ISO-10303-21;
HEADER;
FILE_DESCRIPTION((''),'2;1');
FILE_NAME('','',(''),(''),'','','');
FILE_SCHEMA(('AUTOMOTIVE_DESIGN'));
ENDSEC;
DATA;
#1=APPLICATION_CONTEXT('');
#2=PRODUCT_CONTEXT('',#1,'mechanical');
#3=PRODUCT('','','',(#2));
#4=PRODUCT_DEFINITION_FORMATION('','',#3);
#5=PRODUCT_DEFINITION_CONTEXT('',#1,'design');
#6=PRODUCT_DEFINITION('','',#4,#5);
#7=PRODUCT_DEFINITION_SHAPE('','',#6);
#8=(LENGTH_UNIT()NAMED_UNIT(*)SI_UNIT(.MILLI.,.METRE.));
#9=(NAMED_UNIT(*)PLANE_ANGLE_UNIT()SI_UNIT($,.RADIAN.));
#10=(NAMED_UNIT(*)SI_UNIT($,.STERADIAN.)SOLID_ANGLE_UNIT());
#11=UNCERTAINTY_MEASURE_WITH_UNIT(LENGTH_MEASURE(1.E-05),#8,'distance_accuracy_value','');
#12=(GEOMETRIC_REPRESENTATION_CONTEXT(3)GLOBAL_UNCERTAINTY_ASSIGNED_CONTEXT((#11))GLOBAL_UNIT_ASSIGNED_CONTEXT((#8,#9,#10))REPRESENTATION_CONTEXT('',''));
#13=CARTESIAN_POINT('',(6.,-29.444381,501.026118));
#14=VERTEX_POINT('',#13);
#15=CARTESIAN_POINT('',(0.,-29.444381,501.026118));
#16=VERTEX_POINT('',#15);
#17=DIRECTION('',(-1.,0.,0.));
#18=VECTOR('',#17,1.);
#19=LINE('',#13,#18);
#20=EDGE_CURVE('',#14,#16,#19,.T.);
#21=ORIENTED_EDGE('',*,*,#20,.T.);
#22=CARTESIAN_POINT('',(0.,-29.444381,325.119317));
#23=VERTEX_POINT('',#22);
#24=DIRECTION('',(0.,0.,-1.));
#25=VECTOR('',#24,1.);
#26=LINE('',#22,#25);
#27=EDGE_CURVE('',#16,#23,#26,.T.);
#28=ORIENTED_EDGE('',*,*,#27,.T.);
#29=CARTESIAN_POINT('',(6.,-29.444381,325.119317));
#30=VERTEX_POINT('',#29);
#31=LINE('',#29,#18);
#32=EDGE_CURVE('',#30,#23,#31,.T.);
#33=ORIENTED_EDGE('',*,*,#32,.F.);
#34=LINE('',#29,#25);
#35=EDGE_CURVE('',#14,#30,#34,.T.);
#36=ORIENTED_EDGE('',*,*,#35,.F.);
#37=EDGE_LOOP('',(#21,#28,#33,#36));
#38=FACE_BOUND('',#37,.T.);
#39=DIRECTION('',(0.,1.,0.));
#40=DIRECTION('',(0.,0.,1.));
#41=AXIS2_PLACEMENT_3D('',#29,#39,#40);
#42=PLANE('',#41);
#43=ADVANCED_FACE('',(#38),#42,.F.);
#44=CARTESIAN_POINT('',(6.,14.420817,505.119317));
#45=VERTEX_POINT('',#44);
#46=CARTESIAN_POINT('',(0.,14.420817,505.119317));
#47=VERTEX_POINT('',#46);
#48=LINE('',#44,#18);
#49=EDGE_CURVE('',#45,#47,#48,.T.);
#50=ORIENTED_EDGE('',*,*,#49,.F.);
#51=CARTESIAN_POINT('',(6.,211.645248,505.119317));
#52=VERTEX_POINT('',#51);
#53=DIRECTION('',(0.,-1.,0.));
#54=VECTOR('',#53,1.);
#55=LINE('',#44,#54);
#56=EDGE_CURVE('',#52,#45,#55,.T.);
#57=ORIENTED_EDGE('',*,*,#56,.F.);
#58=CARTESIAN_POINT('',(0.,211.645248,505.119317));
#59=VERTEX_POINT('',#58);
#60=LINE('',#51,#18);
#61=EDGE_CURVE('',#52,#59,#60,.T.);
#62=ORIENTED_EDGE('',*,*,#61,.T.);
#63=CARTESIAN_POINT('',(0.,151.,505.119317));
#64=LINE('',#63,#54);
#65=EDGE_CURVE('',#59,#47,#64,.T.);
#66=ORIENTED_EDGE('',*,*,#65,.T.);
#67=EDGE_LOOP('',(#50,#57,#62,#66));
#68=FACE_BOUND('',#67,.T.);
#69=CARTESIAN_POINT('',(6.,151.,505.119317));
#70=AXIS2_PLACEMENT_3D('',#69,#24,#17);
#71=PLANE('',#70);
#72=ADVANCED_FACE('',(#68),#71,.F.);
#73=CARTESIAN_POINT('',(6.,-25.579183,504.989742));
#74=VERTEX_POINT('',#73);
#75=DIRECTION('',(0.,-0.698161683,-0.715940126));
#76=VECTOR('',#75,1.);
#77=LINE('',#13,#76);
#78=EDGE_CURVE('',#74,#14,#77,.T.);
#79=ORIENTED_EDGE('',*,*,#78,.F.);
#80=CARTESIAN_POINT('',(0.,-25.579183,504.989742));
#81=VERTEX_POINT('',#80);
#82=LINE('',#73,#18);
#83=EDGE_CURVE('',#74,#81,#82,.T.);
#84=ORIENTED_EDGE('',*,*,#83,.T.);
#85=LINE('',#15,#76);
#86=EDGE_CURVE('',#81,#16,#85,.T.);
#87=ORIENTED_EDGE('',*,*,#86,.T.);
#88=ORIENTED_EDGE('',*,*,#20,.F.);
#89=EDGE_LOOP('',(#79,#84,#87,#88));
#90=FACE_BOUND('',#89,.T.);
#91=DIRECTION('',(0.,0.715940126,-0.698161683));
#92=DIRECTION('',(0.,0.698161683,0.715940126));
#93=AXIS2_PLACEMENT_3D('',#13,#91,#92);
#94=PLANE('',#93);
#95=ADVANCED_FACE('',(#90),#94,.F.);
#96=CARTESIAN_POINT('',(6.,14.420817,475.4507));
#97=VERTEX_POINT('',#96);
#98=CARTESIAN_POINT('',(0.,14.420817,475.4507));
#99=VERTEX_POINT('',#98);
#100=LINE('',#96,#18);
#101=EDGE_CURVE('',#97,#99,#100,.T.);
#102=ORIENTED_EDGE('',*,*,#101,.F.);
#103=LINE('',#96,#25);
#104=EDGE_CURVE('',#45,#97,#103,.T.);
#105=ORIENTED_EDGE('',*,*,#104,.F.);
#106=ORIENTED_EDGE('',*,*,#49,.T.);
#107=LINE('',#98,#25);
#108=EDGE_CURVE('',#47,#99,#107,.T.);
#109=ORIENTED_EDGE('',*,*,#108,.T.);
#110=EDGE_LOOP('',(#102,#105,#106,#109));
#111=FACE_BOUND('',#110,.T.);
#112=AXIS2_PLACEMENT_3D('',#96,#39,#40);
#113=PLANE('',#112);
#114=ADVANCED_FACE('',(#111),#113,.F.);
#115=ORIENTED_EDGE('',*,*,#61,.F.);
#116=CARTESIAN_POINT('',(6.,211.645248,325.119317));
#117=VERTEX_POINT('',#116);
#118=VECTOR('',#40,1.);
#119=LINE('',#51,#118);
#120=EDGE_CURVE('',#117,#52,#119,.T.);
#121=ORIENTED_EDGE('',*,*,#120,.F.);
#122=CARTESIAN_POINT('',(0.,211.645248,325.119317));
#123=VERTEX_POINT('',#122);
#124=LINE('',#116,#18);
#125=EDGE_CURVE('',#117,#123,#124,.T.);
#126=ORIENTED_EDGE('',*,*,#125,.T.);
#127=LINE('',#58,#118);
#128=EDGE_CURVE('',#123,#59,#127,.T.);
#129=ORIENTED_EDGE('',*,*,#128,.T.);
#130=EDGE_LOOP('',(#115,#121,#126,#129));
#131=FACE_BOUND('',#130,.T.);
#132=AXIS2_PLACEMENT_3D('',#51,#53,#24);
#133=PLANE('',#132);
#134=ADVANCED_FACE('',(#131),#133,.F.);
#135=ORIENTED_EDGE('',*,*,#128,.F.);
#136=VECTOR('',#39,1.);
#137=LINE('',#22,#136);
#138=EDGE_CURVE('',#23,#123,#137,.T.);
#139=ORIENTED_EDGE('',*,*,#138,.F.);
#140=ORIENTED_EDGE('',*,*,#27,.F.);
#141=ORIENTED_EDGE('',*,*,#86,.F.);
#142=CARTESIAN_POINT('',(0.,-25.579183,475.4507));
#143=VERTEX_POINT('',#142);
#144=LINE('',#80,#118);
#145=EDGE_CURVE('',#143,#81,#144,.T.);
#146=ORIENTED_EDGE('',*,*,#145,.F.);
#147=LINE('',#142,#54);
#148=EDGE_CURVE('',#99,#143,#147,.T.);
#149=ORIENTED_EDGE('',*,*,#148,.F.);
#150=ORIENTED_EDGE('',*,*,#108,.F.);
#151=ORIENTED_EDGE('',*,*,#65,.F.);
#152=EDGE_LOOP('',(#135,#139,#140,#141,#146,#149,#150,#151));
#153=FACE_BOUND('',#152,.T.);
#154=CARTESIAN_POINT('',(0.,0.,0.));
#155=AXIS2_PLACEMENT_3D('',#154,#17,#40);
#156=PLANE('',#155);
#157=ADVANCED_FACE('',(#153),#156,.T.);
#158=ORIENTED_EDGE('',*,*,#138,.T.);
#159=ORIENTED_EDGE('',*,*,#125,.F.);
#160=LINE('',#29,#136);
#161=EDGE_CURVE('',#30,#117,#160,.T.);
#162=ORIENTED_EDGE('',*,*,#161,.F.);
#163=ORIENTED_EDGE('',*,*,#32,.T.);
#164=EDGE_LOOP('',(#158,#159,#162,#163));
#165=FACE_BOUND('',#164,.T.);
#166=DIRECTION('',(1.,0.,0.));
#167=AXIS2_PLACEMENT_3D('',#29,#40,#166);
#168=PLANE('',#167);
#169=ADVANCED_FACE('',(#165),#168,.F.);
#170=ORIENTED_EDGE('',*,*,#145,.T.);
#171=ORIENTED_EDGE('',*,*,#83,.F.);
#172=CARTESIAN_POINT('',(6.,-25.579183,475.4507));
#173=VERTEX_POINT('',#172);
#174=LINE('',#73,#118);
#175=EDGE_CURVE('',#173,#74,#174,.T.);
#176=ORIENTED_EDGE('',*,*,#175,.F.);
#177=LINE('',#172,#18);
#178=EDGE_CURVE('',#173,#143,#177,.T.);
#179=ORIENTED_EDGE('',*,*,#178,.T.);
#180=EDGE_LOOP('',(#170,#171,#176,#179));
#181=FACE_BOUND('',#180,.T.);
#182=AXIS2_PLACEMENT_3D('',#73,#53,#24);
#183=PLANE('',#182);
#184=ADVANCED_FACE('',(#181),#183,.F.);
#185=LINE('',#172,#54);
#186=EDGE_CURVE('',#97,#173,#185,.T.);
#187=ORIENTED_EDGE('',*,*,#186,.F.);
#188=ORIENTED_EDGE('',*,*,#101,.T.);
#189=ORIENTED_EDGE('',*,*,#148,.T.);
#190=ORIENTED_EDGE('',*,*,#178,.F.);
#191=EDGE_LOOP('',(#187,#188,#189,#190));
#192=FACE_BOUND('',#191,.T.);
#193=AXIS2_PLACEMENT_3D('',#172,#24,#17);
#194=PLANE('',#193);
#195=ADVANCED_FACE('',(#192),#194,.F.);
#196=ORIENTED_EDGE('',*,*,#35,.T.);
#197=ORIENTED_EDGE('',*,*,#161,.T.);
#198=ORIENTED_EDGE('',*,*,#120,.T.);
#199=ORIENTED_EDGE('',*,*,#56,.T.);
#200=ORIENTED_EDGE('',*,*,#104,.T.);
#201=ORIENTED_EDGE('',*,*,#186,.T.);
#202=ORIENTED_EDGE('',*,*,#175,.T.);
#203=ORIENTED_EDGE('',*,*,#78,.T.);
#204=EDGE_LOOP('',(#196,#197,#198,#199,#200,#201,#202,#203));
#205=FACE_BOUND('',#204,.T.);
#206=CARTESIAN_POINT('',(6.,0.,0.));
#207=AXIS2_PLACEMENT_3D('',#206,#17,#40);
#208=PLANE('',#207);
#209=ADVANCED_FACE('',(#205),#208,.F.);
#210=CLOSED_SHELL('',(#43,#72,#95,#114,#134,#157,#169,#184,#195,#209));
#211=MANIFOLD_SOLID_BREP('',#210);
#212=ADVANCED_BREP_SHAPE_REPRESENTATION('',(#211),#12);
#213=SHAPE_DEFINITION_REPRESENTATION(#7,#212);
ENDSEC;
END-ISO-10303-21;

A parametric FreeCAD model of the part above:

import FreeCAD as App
import Part
import Sketcher
Q = App.Units.Quantity


def add_polygon(sketch, points):
    """Adds a closed chain of lines whose ends are joined by coincident constraints."""
    first, n = sketch.GeometryCount, len(points)
    for a, b in zip(points, points[1:] + points[:1]):
        sketch.addGeometry(Part.LineSegment(App.Vector(*a, 0), App.Vector(*b, 0)), False)
    for i in range(n):
        sketch.addConstraint(Sketcher.Constraint("Coincident", first + i, 2, first + (i + 1) % n, 1))

doc = App.newDocument("Part")
body = doc.addObject("PartDesign::Body", "Body")

sketch1 = body.newObject("Sketcher::SketchObject", "Sketch")
sketch1.AttachmentSupport = (doc.getObject("YZ_Plane"), [""])
sketch1.MapMode = "FlatFace"
add_polygon(sketch1, [(212, 325), (212, 505), (14, 505), (14, 475), (-26, 475), (-26, 505), (-29, 501), (-29, 325)])
sketch1.addConstraint(Sketcher.Constraint("Vertical", 0))
sketch1.addConstraint(Sketcher.Constraint("Horizontal", 1))
sketch1.addConstraint(Sketcher.Constraint("Vertical", 2))
sketch1.addConstraint(Sketcher.Constraint("Horizontal", 3))
sketch1.addConstraint(Sketcher.Constraint("Vertical", 4))
sketch1.addConstraint(Sketcher.Constraint("Vertical", 6))
sketch1.addConstraint(Sketcher.Constraint("Horizontal", 7))
sketch1.addConstraint(Sketcher.Constraint("DistanceX", 3, 2, 3, 1, Q("40 mm")))
sketch1.addConstraint(Sketcher.Constraint("DistanceY", 0, 1, 0, 2, Q("180 mm")))
sketch1.addConstraint(Sketcher.Constraint("DistanceY", 6, 2, 6, 1, Q("175.906801 mm")))
sketch1.addConstraint(Sketcher.Constraint("DistanceX", 1, 2, 1, 1, Q("197.224431 mm")))
sketch1.addConstraint(Sketcher.Constraint("DistanceX", 7, 1, 7, 2, Q("241.089629 mm")))
sketch1.addConstraint(Sketcher.Constraint("DistanceY", 4, 1, 4, 2, Q("29.539041 mm")))
sketch1.addConstraint(Sketcher.Constraint("DistanceY", -1, 1, 2, 2, Q("475.4507 mm")))
sketch1.addConstraint(Sketcher.Constraint("Distance", 5, Q("5.536251 mm")))
sketch1.addConstraint(Sketcher.Constraint("DistanceX", 5, 2, -1, 1, Q("29.444381 mm")))
pad1 = body.newObject("PartDesign::Pad", "Pad")
pad1.Profile = sketch1
pad1.Length = 6

doc.recompute()
